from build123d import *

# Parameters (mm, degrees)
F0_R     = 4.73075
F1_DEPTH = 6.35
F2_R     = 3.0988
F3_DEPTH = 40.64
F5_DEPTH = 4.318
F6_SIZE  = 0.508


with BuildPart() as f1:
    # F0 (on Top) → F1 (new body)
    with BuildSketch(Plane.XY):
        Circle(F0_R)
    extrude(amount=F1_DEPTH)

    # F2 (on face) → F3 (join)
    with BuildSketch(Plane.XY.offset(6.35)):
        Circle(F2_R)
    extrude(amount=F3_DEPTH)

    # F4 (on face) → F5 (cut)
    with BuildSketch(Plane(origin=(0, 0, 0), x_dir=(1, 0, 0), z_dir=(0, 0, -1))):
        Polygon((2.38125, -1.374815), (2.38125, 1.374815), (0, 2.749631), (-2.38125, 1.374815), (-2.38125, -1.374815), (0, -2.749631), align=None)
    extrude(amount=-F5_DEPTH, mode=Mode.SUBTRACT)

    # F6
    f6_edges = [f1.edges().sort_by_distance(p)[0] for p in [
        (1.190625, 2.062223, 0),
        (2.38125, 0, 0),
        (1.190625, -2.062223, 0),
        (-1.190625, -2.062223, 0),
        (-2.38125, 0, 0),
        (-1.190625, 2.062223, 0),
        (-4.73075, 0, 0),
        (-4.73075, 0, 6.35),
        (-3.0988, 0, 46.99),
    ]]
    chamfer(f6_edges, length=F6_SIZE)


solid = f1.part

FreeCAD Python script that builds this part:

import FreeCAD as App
import Part
import Sketcher
Q = App.Units.Quantity


def edges_at(feature, points):
    """Names of the edges that pass closest to the given points."""
    edges = feature.Shape.Edges
    near = lambda p: min(range(len(edges)), key=lambda i: edges[i].distToShape(Part.Vertex(*p))[0])
    return sorted({f"Edge{near(p) + 1}" for p in points})


def add_polygon(sketch, points):
    """Adds a closed chain of lines whose ends are joined by coincident constraints."""
    first, n = sketch.GeometryCount, len(points)
    for a, b in zip(points, points[1:] + points[:1]):
        sketch.addGeometry(Part.LineSegment(App.Vector(*a, 0), App.Vector(*b, 0)), False)
    for i in range(n):
        sketch.addConstraint(Sketcher.Constraint("Coincident", first + i, 2, first + (i + 1) % n, 1))

doc = App.newDocument("Part")
params = doc.addObject("Spreadsheet::Sheet", "Params")
for row, (alias, value) in enumerate([
    ("pad1_length", "0.25 in"),
    ("sketch2_diameter", "0.244 in"),
    ("pad2_length", "1.6 in"),
    ("pocket1_length", "0.17 in"),
    ("chamfer_size", "0.02 in"),
], start=1):
    params.set(f"A{row}", alias)
    params.set(f"B{row}", "=" + value)
    params.setAlias(f"B{row}", alias)

body = doc.addObject("PartDesign::Body", "Body")

# Sketch on XY plane
sketch1 = doc.addObject("Sketcher::SketchObject", "Sketch")
body.addObject(sketch1)
sketch1.AttachmentSupport = (doc.XY_Plane, [""])
sketch1.MapMode = "FlatFace"
sketch1.addGeometry(Part.Circle(App.Vector(0, 0, 0), App.Vector(0, 0, 1), 4.7), False)
sketch1.addConstraint(Sketcher.Constraint("Coincident", 0, 3, -1, 1))
sketch1.addConstraint(Sketcher.Constraint("Diameter", 0, Q("0.3725 in")))
pad1 = doc.addObject("PartDesign::Pad", "Pad")
body.addObject(pad1)
pad1.Profile = sketch1
pad1.setExpression("Length", "Params.pad1_length")

# Sketch on XY plane
sketch2 = doc.addObject("Sketcher::SketchObject", "Sketch001")
body.addObject(sketch2)
sketch2.AttachmentSupport = (doc.XY_Plane, [""])
sketch2.MapMode = "FlatFace"
sketch2.AttachmentOffset = App.Placement(App.Vector(0, 0, 0.25 * 25.4), App.Rotation())
sketch2.addGeometry(Part.Circle(App.Vector(0, 0, 0), App.Vector(0, 0, 1), 3.1), False)
sketch2.addConstraint(Sketcher.Constraint("Coincident", 0, 3, -1, 1))
sketch2.addConstraint(Sketcher.Constraint("Diameter", 0, Q("0.244 in")))
sketch2.setExpression("Constraints[1]", "Params.sketch2_diameter")
pad2 = doc.addObject("PartDesign::Pad", "Pad001")
body.addObject(pad2)
pad2.Profile = sketch2
pad2.setExpression("Length", "Params.pad2_length")

# Sketch on XY plane
sketch3 = doc.addObject("Sketcher::SketchObject", "Sketch002")
body.addObject(sketch3)
sketch3.AttachmentSupport = (doc.XY_Plane, [""])
sketch3.MapMode = "FlatFace"
add_polygon(sketch3, [(2.4, 1.4), (2.4, -1.4), (0, -2.7), (-2.4, -1.4), (-2.4, 1.4), (0, 2.7)])  # lines 0-5
sketch3.addConstraint(Sketcher.Constraint("Vertical", 0))
sketch3.addConstraint(Sketcher.Constraint("Vertical", 3))
sketch3.addConstraint(Sketcher.Constraint("Symmetric", 0, 2, 3, 2, -1, 1))
sketch3.addConstraint(Sketcher.Constraint("Symmetric", 1, 2, 4, 2, -1, 1))
sketch3.addConstraint(Sketcher.Constraint("PointOnObject", 1, 2, -2))
sketch3.addConstraint(Sketcher.Constraint("Parallel", 2, 5))
sketch3.addConstraint(Sketcher.Constraint("Horizontal", 0, 2, 2, 2))
sketch3.addConstraint(Sketcher.Constraint("Angle", 1, Q("-149.999988 deg")))
sketch3.addConstraint(Sketcher.Constraint("DistanceX", -1, 1, 0, 2, Q("0.09375 in")))
sketch3.addConstraint(Sketcher.Constraint("DistanceY", 0, 2, 0, 1, Q("2.74963 mm")))
pocket1 = doc.addObject("PartDesign::Pocket", "Pocket")
body.addObject(pocket1)
pocket1.Profile = sketch3
pocket1.setExpression("Length", "Params.pocket1_length")
pocket1.Reversed = True
doc.recompute()

chamfer = doc.addObject("PartDesign::Chamfer", "Chamfer")
body.addObject(chamfer)
chamfer.Base = (pocket1, edges_at(pocket1, [
    (1.191, 2.062, 0),
    (2.381, 0, 0),
    (1.191, -2.062, 0),
    (-1.191, -2.062, 0),
    (-2.381, 0, 0),
    (-1.191, 2.062, 0),
    (-4.731, 0, 0),
    (-4.731, 0, 6.35),
    (-3.099, 0, 46.99),
]))
chamfer.setExpression("Size", "Params.chamfer_size")

doc.recompute()
